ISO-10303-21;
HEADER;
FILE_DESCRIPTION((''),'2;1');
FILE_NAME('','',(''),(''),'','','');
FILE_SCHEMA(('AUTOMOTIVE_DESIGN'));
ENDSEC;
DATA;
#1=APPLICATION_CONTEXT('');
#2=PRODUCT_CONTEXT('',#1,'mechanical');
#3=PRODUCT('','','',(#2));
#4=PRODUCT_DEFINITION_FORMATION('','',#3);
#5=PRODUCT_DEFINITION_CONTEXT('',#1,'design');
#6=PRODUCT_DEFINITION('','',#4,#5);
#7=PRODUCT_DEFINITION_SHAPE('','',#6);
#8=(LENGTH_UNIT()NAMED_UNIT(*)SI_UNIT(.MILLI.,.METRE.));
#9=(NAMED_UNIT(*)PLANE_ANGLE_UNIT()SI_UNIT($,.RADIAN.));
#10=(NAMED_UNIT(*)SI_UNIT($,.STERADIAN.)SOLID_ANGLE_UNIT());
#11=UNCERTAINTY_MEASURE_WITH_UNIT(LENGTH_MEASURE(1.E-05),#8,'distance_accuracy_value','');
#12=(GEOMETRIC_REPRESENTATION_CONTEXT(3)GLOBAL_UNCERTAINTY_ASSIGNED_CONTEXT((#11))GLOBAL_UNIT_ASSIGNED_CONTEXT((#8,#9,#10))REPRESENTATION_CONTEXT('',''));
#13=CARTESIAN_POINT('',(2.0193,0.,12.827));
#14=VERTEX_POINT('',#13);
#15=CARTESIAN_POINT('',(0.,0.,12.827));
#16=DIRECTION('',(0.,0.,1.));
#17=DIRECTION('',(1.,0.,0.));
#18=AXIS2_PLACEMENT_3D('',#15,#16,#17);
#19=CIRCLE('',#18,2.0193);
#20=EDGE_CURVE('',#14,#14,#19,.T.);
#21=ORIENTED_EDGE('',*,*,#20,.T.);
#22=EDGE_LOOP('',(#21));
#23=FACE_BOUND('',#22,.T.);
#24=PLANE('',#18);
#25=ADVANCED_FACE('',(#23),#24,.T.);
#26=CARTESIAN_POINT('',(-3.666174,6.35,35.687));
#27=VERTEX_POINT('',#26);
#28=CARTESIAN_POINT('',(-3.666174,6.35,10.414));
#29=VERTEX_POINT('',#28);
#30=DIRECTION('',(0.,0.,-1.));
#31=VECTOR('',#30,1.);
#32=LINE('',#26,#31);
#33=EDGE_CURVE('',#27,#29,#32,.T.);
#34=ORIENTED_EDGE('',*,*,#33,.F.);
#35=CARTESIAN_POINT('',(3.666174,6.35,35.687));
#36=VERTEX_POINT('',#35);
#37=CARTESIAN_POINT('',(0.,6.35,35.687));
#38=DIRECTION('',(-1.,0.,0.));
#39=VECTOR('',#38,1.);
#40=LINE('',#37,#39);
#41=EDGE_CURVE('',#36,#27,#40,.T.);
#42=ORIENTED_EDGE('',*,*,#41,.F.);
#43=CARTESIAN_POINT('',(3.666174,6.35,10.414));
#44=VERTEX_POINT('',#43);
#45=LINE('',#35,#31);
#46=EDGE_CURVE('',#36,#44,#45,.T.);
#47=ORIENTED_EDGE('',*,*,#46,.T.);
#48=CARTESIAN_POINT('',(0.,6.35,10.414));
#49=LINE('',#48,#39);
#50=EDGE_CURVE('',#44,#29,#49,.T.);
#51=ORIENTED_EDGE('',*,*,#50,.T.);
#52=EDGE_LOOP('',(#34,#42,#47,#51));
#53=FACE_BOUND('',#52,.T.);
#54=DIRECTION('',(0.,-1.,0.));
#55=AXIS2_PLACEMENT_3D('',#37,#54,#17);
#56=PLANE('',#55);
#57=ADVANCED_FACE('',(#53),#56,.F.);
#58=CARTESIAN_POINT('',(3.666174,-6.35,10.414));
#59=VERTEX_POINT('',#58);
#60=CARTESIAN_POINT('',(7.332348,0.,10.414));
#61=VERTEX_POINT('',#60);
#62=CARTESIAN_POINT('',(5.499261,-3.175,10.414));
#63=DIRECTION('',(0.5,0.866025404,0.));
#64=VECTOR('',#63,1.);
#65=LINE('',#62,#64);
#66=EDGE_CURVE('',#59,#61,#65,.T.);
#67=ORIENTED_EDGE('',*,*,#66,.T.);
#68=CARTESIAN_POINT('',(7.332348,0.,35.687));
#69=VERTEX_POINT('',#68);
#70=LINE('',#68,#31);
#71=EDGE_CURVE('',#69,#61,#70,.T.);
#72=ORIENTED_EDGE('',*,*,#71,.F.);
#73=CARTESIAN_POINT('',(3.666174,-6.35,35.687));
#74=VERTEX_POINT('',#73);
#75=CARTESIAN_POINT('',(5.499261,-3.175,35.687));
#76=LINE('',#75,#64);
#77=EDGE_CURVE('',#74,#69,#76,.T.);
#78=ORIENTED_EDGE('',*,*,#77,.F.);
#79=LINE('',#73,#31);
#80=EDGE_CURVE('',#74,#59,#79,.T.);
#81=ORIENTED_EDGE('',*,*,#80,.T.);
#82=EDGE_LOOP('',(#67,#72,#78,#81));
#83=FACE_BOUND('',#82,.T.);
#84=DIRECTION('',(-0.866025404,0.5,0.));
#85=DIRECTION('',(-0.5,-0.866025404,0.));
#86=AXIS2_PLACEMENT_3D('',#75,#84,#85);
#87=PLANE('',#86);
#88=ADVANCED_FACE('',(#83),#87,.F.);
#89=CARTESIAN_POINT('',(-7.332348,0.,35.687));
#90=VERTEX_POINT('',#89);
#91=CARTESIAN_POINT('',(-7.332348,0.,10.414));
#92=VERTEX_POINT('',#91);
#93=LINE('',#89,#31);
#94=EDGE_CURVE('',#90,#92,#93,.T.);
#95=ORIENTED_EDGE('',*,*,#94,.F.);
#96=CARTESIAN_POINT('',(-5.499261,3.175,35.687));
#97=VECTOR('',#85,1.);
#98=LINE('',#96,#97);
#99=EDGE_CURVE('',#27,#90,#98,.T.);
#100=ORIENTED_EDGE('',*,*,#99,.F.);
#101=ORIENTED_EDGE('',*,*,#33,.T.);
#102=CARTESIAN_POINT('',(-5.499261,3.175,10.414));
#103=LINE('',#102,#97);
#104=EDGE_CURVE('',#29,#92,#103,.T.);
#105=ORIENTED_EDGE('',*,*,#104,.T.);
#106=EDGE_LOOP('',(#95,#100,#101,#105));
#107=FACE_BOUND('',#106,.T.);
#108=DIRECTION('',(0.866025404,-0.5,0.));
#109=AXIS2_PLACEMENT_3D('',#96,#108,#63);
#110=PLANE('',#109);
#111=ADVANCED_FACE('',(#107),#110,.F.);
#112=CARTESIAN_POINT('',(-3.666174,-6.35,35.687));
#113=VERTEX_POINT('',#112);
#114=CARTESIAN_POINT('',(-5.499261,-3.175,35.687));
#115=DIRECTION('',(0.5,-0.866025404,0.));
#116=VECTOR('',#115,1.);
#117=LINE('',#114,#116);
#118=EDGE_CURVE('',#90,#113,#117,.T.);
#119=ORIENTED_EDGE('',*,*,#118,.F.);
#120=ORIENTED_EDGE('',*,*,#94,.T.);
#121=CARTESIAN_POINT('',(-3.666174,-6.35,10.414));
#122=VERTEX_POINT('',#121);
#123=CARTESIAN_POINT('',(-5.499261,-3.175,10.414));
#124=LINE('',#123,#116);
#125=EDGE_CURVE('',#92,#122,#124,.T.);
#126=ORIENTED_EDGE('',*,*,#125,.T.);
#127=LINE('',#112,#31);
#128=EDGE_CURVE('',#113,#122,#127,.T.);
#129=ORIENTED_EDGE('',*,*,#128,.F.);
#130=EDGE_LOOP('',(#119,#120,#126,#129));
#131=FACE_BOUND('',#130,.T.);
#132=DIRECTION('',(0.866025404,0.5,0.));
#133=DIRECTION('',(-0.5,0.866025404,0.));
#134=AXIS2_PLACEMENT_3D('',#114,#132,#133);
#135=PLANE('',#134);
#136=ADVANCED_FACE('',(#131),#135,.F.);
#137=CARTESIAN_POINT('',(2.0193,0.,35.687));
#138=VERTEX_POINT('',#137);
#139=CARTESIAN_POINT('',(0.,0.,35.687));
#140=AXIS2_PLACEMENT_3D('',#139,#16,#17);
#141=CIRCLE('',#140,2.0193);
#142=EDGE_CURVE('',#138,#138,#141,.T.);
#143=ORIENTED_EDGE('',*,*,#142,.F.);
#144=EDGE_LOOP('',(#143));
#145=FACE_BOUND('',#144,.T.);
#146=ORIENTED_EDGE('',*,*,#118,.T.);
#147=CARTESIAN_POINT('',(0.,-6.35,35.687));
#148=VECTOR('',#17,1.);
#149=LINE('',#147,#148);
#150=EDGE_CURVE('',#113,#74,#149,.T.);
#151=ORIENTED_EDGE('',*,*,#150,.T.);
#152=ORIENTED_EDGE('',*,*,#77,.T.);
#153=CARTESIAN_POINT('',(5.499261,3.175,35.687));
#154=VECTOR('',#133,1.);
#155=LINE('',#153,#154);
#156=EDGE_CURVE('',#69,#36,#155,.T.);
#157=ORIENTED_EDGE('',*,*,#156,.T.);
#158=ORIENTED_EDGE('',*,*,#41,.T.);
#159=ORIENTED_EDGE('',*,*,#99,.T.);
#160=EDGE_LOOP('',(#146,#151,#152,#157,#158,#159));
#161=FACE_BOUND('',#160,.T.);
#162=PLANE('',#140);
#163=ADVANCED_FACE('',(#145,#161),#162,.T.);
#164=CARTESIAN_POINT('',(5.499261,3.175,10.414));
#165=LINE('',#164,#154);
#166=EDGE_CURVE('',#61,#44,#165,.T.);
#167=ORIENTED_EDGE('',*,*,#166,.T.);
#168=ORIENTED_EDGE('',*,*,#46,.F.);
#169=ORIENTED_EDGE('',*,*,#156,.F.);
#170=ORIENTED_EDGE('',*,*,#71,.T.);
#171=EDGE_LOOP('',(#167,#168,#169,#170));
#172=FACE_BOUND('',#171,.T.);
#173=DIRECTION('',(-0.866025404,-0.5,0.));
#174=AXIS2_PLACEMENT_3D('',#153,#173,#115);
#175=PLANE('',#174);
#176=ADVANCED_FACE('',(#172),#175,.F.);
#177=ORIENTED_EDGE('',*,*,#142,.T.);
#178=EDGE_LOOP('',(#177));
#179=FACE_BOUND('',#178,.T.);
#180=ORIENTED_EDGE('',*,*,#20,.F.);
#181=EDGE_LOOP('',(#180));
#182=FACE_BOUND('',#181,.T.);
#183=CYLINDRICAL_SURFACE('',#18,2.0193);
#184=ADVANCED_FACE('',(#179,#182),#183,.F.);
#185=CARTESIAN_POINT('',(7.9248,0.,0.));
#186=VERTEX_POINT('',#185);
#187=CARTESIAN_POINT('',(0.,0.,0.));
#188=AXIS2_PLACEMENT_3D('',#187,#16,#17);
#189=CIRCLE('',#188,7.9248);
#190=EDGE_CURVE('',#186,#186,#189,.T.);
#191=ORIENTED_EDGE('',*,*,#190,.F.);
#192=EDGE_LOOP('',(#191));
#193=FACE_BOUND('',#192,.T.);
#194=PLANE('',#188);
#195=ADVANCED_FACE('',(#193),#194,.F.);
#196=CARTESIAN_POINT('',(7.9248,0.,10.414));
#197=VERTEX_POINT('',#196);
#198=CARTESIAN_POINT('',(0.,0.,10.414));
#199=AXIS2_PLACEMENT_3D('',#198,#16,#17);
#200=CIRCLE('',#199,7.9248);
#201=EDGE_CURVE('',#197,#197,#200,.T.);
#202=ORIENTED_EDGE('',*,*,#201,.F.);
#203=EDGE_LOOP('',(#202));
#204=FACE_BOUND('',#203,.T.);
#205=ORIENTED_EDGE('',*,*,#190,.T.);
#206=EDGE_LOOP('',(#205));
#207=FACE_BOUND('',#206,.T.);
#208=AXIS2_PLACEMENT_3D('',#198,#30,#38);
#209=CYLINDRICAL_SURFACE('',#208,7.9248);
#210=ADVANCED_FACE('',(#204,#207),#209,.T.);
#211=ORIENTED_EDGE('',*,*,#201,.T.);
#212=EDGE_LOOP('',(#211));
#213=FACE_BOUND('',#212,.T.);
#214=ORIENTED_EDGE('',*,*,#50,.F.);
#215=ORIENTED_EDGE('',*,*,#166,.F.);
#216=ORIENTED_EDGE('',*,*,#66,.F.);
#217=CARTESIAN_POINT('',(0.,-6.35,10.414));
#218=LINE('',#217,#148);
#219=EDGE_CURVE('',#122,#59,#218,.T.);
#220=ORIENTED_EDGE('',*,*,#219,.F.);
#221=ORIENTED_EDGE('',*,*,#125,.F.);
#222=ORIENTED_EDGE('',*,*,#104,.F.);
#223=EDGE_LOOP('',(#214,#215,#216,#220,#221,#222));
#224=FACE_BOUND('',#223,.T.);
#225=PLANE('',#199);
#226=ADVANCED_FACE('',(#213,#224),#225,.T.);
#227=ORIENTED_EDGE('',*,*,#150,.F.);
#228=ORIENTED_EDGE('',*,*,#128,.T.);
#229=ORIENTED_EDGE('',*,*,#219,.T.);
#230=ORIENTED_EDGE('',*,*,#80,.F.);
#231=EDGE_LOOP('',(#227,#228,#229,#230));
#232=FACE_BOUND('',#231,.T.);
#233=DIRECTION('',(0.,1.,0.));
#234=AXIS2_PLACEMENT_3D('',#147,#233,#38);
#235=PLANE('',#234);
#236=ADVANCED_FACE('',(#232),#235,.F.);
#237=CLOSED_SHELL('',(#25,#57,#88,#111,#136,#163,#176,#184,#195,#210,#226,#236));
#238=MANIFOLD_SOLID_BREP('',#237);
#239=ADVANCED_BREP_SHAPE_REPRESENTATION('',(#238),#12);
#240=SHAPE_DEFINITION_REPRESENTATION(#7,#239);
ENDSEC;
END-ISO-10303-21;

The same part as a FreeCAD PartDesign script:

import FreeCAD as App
import Part
import Sketcher

V = App.Vector
Q = App.Units.Quantity


def add_polygon(sketch, points):
    """Adds a closed chain of lines whose ends are joined by coincident constraints."""
    first, n = sketch.GeometryCount, len(points)
    for a, b in zip(points, points[1:] + points[:1]):
        sketch.addGeometry(Part.LineSegment(App.Vector(*a, 0), App.Vector(*b, 0)), False)
    for i in range(n):
        sketch.addConstraint(Sketcher.Constraint("Coincident", first + i, 2, first + (i + 1) % n, 1))

doc = App.newDocument("Part")
body = doc.addObject("PartDesign::Body", "Body")

# Sketch on XY plane
sketch1 = body.newObject("Sketcher::SketchObject", "Sketch")
sketch1.AttachmentSupport = (doc.getObject("XY_Plane"), [""])
sketch1.MapMode = "FlatFace"
sketch1.addGeometry(Part.Circle(V(0, 0, 0), V(0, 0, 1), 8), False)
sketch1.addConstraint([
    Sketcher.Constraint("Coincident", 0, 3, -1, 1),
    Sketcher.Constraint("Diameter", 0, Q("0.624 in")),
])
pad1 = body.newObject("PartDesign::Pad", "Pad")
pad1.Profile = sketch1
pad1.Length = Q("0.41 in")

# Sketch on XY plane
sketch2 = body.newObject("Sketcher::SketchObject", "Sketch001")
sketch2.AttachmentSupport = (doc.getObject("XY_Plane"), [""])
sketch2.MapMode = "FlatFace"
sketch2.AttachmentOffset = App.Placement(V(0, 0, 0.41 * 25.4), App.Rotation())
add_polygon(sketch2, [(7, 0), (4, 6), (-4, 6), (-7, 0), (-4, -6), (4, -6)])  # lines 0-5
sketch2.addConstraint([
    Sketcher.Constraint("Horizontal", 1),
    Sketcher.Constraint("Horizontal", 4),
    Sketcher.Constraint("Symmetric", 0, 2, 3, 2, -1, 1),
    Sketcher.Constraint("Symmetric", 2, 2, 5, 2, -1, 1),
    Sketcher.Constraint("PointOnObject", 2, 2, -1),
    Sketcher.Constraint("Parallel", 2, 5),
    Sketcher.Constraint("Vertical", 1, 2, 3, 2),
    Sketcher.Constraint("Angle", 0, Q("120 deg")),
    Sketcher.Constraint("DistanceY", 3, 2, 1, 2, Q("0.5 in")),
    Sketcher.Constraint("DistanceX", 1, 2, 1, 1, Q("7.332348 mm")),
])
pad2 = body.newObject("PartDesign::Pad", "Pad001")
pad2.Profile = sketch2
pad2.Length = Q("0.995 in")

# Sketch on XY plane
sketch3 = body.newObject("Sketcher::SketchObject", "Sketch002")
sketch3.AttachmentSupport = (doc.getObject("XY_Plane"), [""])
sketch3.MapMode = "FlatFace"
sketch3.AttachmentOffset = App.Placement(V(0, 0, 1.405 * 25.4), App.Rotation())
sketch3.addGeometry(Part.Circle(V(0, 0, 0), V(0, 0, 1), 2), False)
sketch3.addConstraint([
    Sketcher.Constraint("Coincident", 0, 3, -1, 1),
    Sketcher.Constraint("Diameter", 0, Q("0.159 in")),
])
pocket1 = body.newObject("PartDesign::Pocket", "Pocket")
pocket1.Profile = sketch3
pocket1.Length = Q("0.9 in")

doc.recompute()
